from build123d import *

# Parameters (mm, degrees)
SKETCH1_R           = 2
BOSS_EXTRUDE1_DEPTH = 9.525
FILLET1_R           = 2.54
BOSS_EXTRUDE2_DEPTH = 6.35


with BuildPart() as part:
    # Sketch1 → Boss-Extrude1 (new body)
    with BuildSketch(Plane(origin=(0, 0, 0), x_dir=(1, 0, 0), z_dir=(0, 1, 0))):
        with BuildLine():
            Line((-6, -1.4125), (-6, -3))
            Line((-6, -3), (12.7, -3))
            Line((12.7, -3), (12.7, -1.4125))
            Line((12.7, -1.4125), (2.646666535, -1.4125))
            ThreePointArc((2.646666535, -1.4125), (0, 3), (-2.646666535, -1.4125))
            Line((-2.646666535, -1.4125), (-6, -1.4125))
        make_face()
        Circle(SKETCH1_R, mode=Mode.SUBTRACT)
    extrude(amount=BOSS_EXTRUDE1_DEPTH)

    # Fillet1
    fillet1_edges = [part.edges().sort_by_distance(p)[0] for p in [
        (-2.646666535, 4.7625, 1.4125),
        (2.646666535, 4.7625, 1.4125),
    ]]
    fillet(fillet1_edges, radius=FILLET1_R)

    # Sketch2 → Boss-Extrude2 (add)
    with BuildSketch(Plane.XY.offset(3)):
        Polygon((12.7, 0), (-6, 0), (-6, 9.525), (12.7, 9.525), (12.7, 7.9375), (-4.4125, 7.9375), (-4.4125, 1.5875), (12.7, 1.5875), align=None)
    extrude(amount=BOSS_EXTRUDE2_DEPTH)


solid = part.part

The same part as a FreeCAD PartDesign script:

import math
import FreeCAD as App
import Part
import Sketcher

V = App.Vector
Q = App.Units.Quantity


def edges_at(feature, points):
    """Names of the edges that pass closest to the given points."""
    edges = feature.Shape.Edges
    near = lambda p: min(range(len(edges)), key=lambda i: edges[i].distToShape(Part.Vertex(*p))[0])
    return sorted({f"Edge{near(p) + 1}" for p in points})

doc = App.newDocument("Part")
body = doc.addObject("PartDesign::Body", "Body")

# Sketch on XZ plane
sketch1 = body.newObject("Sketcher::SketchObject", "Sketch")
sketch1.AttachmentSupport = (doc.getObject("XZ_Plane"), [""])
sketch1.MapMode = "FlatFace"
sketch1.addGeometry(Part.LineSegment(V(-6, 1.4125, 0), V(-6, 3, 0)), False)
sketch1.addGeometry(Part.LineSegment(V(-6, 3, 0), V(12.7, 3, 0)), False)
sketch1.addGeometry(Part.LineSegment(V(12.7, 3, 0), V(12.7, 1.4125, 0)), False)
sketch1.addGeometry(Part.LineSegment(V(12.7, 1.4125, 0), V(2.646667, 1.4125, 0)), False)
sketch1.addGeometry(Part.ArcOfCircle(Part.Circle(V(0, 0, 0), V(0, 0, 1), 3), math.radians(151.911596), math.radians(388.088404)), False)
sketch1.addGeometry(Part.LineSegment(V(-2.646667, 1.4125, 0), V(-6, 1.4125, 0)), False)
sketch1.addGeometry(Part.Circle(V(0, 0, 0), V(0, 0, 1), 2), False)
sketch1.addConstraint(Sketcher.Constraint("Coincident", 0, 2, 1, 1))
sketch1.addConstraint(Sketcher.Constraint("Coincident", 1, 2, 2, 1))
sketch1.addConstraint(Sketcher.Constraint("Coincident", 2, 2, 3, 1))
sketch1.addConstraint(Sketcher.Constraint("Coincident", 3, 2, 4, 2))
sketch1.addConstraint(Sketcher.Constraint("Coincident", 4, 1, 5, 1))
sketch1.addConstraint(Sketcher.Constraint("Coincident", 5, 2, 0, 1))
sketch1.addConstraint(Sketcher.Constraint("Vertical", 0))
sketch1.addConstraint(Sketcher.Constraint("Horizontal", 1))
sketch1.addConstraint(Sketcher.Constraint("Vertical", 2))
sketch1.addConstraint(Sketcher.Constraint("Horizontal", 3))
sketch1.addConstraint(Sketcher.Constraint("Horizontal", 5))
sketch1.addConstraint(Sketcher.Constraint("Coincident", 4, 3, -1, 1))
sketch1.addConstraint(Sketcher.Constraint("Coincident", 6, 3, -1, 1))
sketch1.addConstraint(Sketcher.Constraint("Horizontal", 3, 2, 4, 1))
sketch1.addConstraint(Sketcher.Constraint("DistanceX", -1, 1, 1, 2, Q("0.5 in")))
sketch1.addConstraint(Sketcher.Constraint("Diameter", 6, 4.0))
sketch1.addConstraint(Sketcher.Constraint("DistanceY", 0, 1, 0, 2, Q("0.0625 in")))
sketch1.addConstraint(Sketcher.Constraint("Radius", 4, 3.0))
sketch1.addConstraint(Sketcher.Constraint("DistanceX", 1, 1, 1, 2, 18.7))
sketch1.addConstraint(Sketcher.Constraint("DistanceY", -1, 1, 0, 2, 3.0))
pad1 = body.newObject("PartDesign::Pad", "Pad")
pad1.Profile = sketch1
pad1.Length = Q("0.375 in")
pad1.Reversed = True
doc.recompute()

fillet = body.newObject("PartDesign::Fillet", "Fillet")
fillet.Base = (pad1, edges_at(pad1, [(-2.647, 4.763, 1.413), (2.647, 4.763, 1.413)]))
fillet.Radius = Q("0.1 in")

# Sketch on XY plane
sketch2 = body.newObject("Sketcher::SketchObject", "Sketch001")
sketch2.AttachmentSupport = (doc.getObject("XY_Plane"), [""])
sketch2.MapMode = "FlatFace"
sketch2.AttachmentOffset = App.Placement(V(0, 0, 3), App.Rotation())
sketch2.addGeometry(Part.LineSegment(V(-6, 0, 0), V(12.7, 0, 0)), False)
sketch2.addGeometry(Part.LineSegment(V(12.7, 0, 0), V(12.7, 1.5875, 0)), False)
sketch2.addGeometry(Part.LineSegment(V(12.7, 1.5875, 0), V(-4.4125, 1.5875, 0)), False)
sketch2.addGeometry(Part.LineSegment(V(-4.4125, 1.5875, 0), V(-4.4125, 7.9375, 0)), False)
sketch2.addGeometry(Part.LineSegment(V(-4.4125, 7.9375, 0), V(12.7, 7.9375, 0)), False)
sketch2.addGeometry(Part.LineSegment(V(12.7, 7.9375, 0), V(12.7, 9.525, 0)), False)
sketch2.addGeometry(Part.LineSegment(V(12.7, 9.525, 0), V(-6, 9.525, 0)), False)
sketch2.addGeometry(Part.LineSegment(V(-6, 9.525, 0), V(-6, 0, 0)), False)
sketch2.addConstraint(Sketcher.Constraint("Coincident", 0, 2, 1, 1))
sketch2.addConstraint(Sketcher.Constraint("Coincident", 1, 2, 2, 1))
sketch2.addConstraint(Sketcher.Constraint("Coincident", 2, 2, 3, 1))
sketch2.addConstraint(Sketcher.Constraint("Coincident", 3, 2, 4, 1))
sketch2.addConstraint(Sketcher.Constraint("Coincident", 4, 2, 5, 1))
sketch2.addConstraint(Sketcher.Constraint("Coincident", 5, 2, 6, 1))
sketch2.addConstraint(Sketcher.Constraint("Coincident", 6, 2, 7, 1))
sketch2.addConstraint(Sketcher.Constraint("Coincident", 7, 2, 0, 1))
sketch2.addConstraint(Sketcher.Constraint("Horizontal", 0))
sketch2.addConstraint(Sketcher.Constraint("Vertical", 1))
sketch2.addConstraint(Sketcher.Constraint("Horizontal", 2))
sketch2.addConstraint(Sketcher.Constraint("Vertical", 3))
sketch2.addConstraint(Sketcher.Constraint("Horizontal", 4))
sketch2.addConstraint(Sketcher.Constraint("Vertical", 5))
sketch2.addConstraint(Sketcher.Constraint("Horizontal", 6))
sketch2.addConstraint(Sketcher.Constraint("Vertical", 7))
sketch2.addConstraint(Sketcher.Constraint("PointOnObject", 0, 2, -1))
sketch2.addConstraint(Sketcher.Constraint("Vertical", 1, 2, 4, 2))
sketch2.addConstraint(Sketcher.Constraint("Equal", 1, 5))
sketch2.addConstraint(Sketcher.Constraint("DistanceY", 3, 1, 3, 2, Q("0.25 in")))
sketch2.addConstraint(Sketcher.Constraint("DistanceX", -1, 1, 0, 2, Q("0.5 in")))
sketch2.addConstraint(Sketcher.Constraint("DistanceY", 1, 1, 1, 2, Q("0.0625 in")))
sketch2.addConstraint(Sketcher.Constraint("DistanceX", 6, 2, 3, 2, Q("0.0625 in")))
sketch2.addConstraint(Sketcher.Constraint("DistanceX", 0, 1, 0, 2, 18.7))
pad2 = body.newObject("PartDesign::Pad", "Pad001")
pad2.Profile = sketch2
pad2.Length = Q("0.25 in")

doc.recompute()
